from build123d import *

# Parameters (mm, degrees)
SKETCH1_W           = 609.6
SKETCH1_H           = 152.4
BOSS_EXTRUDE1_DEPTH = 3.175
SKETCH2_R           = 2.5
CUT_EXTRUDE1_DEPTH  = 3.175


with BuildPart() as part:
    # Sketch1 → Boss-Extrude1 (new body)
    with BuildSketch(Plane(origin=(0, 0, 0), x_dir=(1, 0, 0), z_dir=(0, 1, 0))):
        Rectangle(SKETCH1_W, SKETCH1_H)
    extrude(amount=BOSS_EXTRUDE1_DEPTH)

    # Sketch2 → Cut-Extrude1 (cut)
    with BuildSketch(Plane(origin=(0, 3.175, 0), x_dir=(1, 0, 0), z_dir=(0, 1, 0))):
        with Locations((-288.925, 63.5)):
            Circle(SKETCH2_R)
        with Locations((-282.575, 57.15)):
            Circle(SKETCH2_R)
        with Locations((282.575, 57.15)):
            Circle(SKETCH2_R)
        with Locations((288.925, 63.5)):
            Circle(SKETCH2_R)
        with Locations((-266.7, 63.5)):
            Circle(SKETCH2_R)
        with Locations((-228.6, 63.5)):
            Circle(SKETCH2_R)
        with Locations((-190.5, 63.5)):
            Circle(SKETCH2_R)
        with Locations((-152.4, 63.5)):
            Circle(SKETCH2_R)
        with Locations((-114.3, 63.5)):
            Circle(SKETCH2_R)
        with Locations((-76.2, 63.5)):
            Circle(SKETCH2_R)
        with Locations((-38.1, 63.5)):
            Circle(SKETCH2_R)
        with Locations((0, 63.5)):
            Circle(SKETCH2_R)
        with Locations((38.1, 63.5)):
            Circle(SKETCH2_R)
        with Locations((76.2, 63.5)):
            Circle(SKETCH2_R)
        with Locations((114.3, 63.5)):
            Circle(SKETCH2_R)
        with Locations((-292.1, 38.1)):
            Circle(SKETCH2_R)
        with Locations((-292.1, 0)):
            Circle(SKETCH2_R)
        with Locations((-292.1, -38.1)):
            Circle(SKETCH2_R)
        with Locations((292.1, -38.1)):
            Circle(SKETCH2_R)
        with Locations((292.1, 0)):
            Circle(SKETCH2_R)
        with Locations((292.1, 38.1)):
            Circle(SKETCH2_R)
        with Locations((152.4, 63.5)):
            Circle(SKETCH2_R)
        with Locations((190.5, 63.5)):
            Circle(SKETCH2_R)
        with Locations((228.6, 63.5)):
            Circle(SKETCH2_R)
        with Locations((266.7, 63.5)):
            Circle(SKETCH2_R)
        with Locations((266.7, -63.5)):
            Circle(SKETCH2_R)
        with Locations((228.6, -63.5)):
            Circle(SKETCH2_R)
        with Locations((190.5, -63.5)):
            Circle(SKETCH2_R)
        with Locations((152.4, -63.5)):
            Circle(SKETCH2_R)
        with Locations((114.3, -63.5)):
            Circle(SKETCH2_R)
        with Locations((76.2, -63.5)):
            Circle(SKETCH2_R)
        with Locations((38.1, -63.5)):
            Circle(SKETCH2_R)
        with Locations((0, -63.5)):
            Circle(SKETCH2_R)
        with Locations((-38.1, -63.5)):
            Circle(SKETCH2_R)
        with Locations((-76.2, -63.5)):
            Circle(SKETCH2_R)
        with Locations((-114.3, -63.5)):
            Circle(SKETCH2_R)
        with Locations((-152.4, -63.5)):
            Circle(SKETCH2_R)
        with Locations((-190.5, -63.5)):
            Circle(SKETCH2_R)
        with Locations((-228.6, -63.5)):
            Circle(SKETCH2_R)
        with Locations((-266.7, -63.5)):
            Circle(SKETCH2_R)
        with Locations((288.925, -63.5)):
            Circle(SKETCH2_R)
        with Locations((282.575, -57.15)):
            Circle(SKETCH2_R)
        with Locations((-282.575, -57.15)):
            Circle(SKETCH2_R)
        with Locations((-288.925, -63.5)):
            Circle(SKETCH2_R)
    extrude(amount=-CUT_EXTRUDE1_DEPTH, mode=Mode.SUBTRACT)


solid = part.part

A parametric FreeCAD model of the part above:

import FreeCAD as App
import Part
import Sketcher
Q = App.Units.Quantity


def add_polygon(sketch, points):
    """Adds a closed chain of lines whose ends are joined by coincident constraints."""
    first, n = sketch.GeometryCount, len(points)
    for a, b in zip(points, points[1:] + points[:1]):
        sketch.addGeometry(Part.LineSegment(App.Vector(*a, 0), App.Vector(*b, 0)), False)
    for i in range(n):
        sketch.addConstraint(Sketcher.Constraint("Coincident", first + i, 2, first + (i + 1) % n, 1))

doc = App.newDocument("Part")
params = doc.addObject("Spreadsheet::Sheet", "Params")
for row, (alias, value) in enumerate([
    ("sketch1_width", "24 in"),
    ("sketch1_height", "6 in"),
    ("pad1_length", "0.125 in"),
    ("pocket1_length", "0.125 in"),
], start=1):
    params.set(f"A{row}", alias)
    params.set(f"B{row}", "=" + value)
    params.setAlias(f"B{row}", alias)

body = doc.addObject("PartDesign::Body", "Body")

# Sketch on XZ plane
sketch1 = body.newObject("Sketcher::SketchObject", "Sketch")
sketch1.AttachmentSupport = (doc.getObject("XZ_Plane"), [""])
sketch1.MapMode = "FlatFace"
add_polygon(sketch1, [(-305, -76), (-305, 76), (305, 76), (305, -76)])  # lines 0-3
sketch1.addConstraint([
    Sketcher.Constraint("Vertical", 0),
    Sketcher.Constraint("Horizontal", 1),
    Sketcher.Constraint("Vertical", 2),
    Sketcher.Constraint("Horizontal", 3),
    Sketcher.Constraint("Symmetric", 0, 2, 2, 2, -1, 1),
    Sketcher.Constraint("DistanceX", 1, 1, 1, 2, Q("24 in")),
    Sketcher.Constraint("DistanceY", 0, 1, 0, 2, Q("6 in")),
])
sketch1.setExpression("Constraints[9]", "Params.sketch1_width")
sketch1.setExpression("Constraints[10]", "Params.sketch1_height")
pad1 = body.newObject("PartDesign::Pad", "Pad")
pad1.Profile = sketch1
pad1.setExpression("Length", "Params.pad1_length")
pad1.Reversed = True

# Sketch on XZ plane
sketch2 = body.newObject("Sketcher::SketchObject", "Sketch001")
sketch2.AttachmentSupport = (doc.getObject("XZ_Plane"), [""])
sketch2.MapMode = "FlatFace"
sketch2.AttachmentOffset = App.Placement(App.Vector(0, 0, -0.125 * 25.4), App.Rotation())
sketch2.addGeometry([
    Part.Circle(App.Vector(-288.9, -63.5, 0), App.Vector(0, 0, 1), 2.5),  # 0
    Part.Circle(App.Vector(-282.6, -57.1, 0), App.Vector(0, 0, 1), 2.5),  # 1
    Part.Circle(App.Vector(282.6, -57.1, 0), App.Vector(0, 0, 1), 2.5),  # 2
    Part.Circle(App.Vector(288.9, -63.5, 0), App.Vector(0, 0, 1), 2.5),  # 3
    Part.Circle(App.Vector(-266.7, -63.5, 0), App.Vector(0, 0, 1), 2.5),  # 4
    Part.Circle(App.Vector(-228.6, -63.5, 0), App.Vector(0, 0, 1), 2.5),  # 5
    Part.Circle(App.Vector(-190.5, -63.5, 0), App.Vector(0, 0, 1), 2.5),  # 6
    Part.Circle(App.Vector(-152.4, -63.5, 0), App.Vector(0, 0, 1), 2.5),  # 7
    Part.Circle(App.Vector(-114.3, -63.5, 0), App.Vector(0, 0, 1), 2.5),  # 8
    Part.Circle(App.Vector(-76.2, -63.5, 0), App.Vector(0, 0, 1), 2.5),  # 9
    Part.Circle(App.Vector(-38.1, -63.5, 0), App.Vector(0, 0, 1), 2.5),  # 10
    Part.Circle(App.Vector(0, -63.5, 0), App.Vector(0, 0, 1), 2.5),  # 11
    Part.Circle(App.Vector(38.1, -63.5, 0), App.Vector(0, 0, 1), 2.5),  # 12
    Part.Circle(App.Vector(76.2, -63.5, 0), App.Vector(0, 0, 1), 2.5),  # 13
    Part.Circle(App.Vector(114.3, -63.5, 0), App.Vector(0, 0, 1), 2.5),  # 14
    Part.Circle(App.Vector(-292.1, -38.1, 0), App.Vector(0, 0, 1), 2.5),  # 15
    Part.Circle(App.Vector(-292.1, 0, 0), App.Vector(0, 0, 1), 2.5),  # 16
    Part.Circle(App.Vector(-292.1, 38.1, 0), App.Vector(0, 0, 1), 2.5),  # 17
    Part.Circle(App.Vector(292.1, 38.1, 0), App.Vector(0, 0, 1), 2.5),  # 18
    Part.Circle(App.Vector(292.1, 0, 0), App.Vector(0, 0, 1), 2.5),  # 19
    Part.Circle(App.Vector(292.1, -38.1, 0), App.Vector(0, 0, 1), 2.5),  # 20
    Part.Circle(App.Vector(152.4, -63.5, 0), App.Vector(0, 0, 1), 2.5),  # 21
    Part.Circle(App.Vector(190.5, -63.5, 0), App.Vector(0, 0, 1), 2.5),  # 22
    Part.Circle(App.Vector(228.6, -63.5, 0), App.Vector(0, 0, 1), 2.5),  # 23
    Part.Circle(App.Vector(266.7, -63.5, 0), App.Vector(0, 0, 1), 2.5),  # 24
    Part.Circle(App.Vector(266.7, 63.5, 0), App.Vector(0, 0, 1), 2.5),  # 25
    Part.Circle(App.Vector(228.6, 63.5, 0), App.Vector(0, 0, 1), 2.5),  # 26
    Part.Circle(App.Vector(190.5, 63.5, 0), App.Vector(0, 0, 1), 2.5),  # 27
    Part.Circle(App.Vector(152.4, 63.5, 0), App.Vector(0, 0, 1), 2.5),  # 28
    Part.Circle(App.Vector(114.3, 63.5, 0), App.Vector(0, 0, 1), 2.5),  # 29
    Part.Circle(App.Vector(76.2, 63.5, 0), App.Vector(0, 0, 1), 2.5),  # 30
    Part.Circle(App.Vector(38.1, 63.5, 0), App.Vector(0, 0, 1), 2.5),  # 31
    Part.Circle(App.Vector(0, 63.5, 0), App.Vector(0, 0, 1), 2.5),  # 32
    Part.Circle(App.Vector(-38.1, 63.5, 0), App.Vector(0, 0, 1), 2.5),  # 33
    Part.Circle(App.Vector(-76.2, 63.5, 0), App.Vector(0, 0, 1), 2.5),  # 34
    Part.Circle(App.Vector(-114.3, 63.5, 0), App.Vector(0, 0, 1), 2.5),  # 35
    Part.Circle(App.Vector(-152.4, 63.5, 0), App.Vector(0, 0, 1), 2.5),  # 36
    Part.Circle(App.Vector(-190.5, 63.5, 0), App.Vector(0, 0, 1), 2.5),  # 37
    Part.Circle(App.Vector(-228.6, 63.5, 0), App.Vector(0, 0, 1), 2.5),  # 38
    Part.Circle(App.Vector(-266.7, 63.5, 0), App.Vector(0, 0, 1), 2.5),  # 39
    Part.Circle(App.Vector(288.9, 63.5, 0), App.Vector(0, 0, 1), 2.5),  # 40
    Part.Circle(App.Vector(282.6, 57.1, 0), App.Vector(0, 0, 1), 2.5),  # 41
    Part.Circle(App.Vector(-282.6, 57.1, 0), App.Vector(0, 0, 1), 2.5),  # 42
    Part.Circle(App.Vector(-288.9, 63.5, 0), App.Vector(0, 0, 1), 2.5),  # 43
], False)
sketch2.addConstraint([
    Sketcher.Constraint("Equal", 0, 1),
    Sketcher.Constraint("Equal", 1, 2),
    Sketcher.Constraint("Equal", 2, 3),
    Sketcher.Constraint("Equal", 3, 4),
    Sketcher.Constraint("Equal", 4, 5),
    Sketcher.Constraint("Equal", 5, 6),
    Sketcher.Constraint("Equal", 6, 7),
    Sketcher.Constraint("Equal", 7, 8),
    Sketcher.Constraint("Equal", 8, 9),
    Sketcher.Constraint("Equal", 9, 10),
    Sketcher.Constraint("Equal", 10, 11),
    Sketcher.Constraint("Equal", 11, 12),
    Sketcher.Constraint("Equal", 12, 13),
    Sketcher.Constraint("Equal", 13, 14),
    Sketcher.Constraint("Equal", 14, 15),
    Sketcher.Constraint("Equal", 15, 16),
    Sketcher.Constraint("Equal", 16, 17),
    Sketcher.Constraint("Equal", 17, 18),
    Sketcher.Constraint("Equal", 18, 19),
    Sketcher.Constraint("Equal", 19, 20),
    Sketcher.Constraint("Equal", 20, 21),
    Sketcher.Constraint("Equal", 21, 22),
    Sketcher.Constraint("Equal", 22, 23),
    Sketcher.Constraint("Equal", 23, 24),
    Sketcher.Constraint("Equal", 24, 25),
    Sketcher.Constraint("Equal", 25, 26),
    Sketcher.Constraint("Equal", 26, 27),
    Sketcher.Constraint("Equal", 27, 28),
    Sketcher.Constraint("Equal", 28, 29),
    Sketcher.Constraint("Equal", 29, 30),
    Sketcher.Constraint("Equal", 30, 31),
    Sketcher.Constraint("Equal", 31, 32),
    Sketcher.Constraint("Equal", 32, 33),
    Sketcher.Constraint("Equal", 33, 34),
    Sketcher.Constraint("Equal", 34, 35),
    Sketcher.Constraint("Equal", 35, 36),
    Sketcher.Constraint("Equal", 36, 37),
    Sketcher.Constraint("Equal", 37, 38),
    Sketcher.Constraint("Equal", 38, 39),
    Sketcher.Constraint("Equal", 39, 40),
    Sketcher.Constraint("Equal", 40, 41),
    Sketcher.Constraint("Equal", 41, 42),
    Sketcher.Constraint("Equal", 42, 43),
    Sketcher.Constraint("Symmetric", 15, 3, 18, 3, -1, 1),
    Sketcher.Constraint("Symmetric", 16, 3, 19, 3, -1, 1),
    Sketcher.Constraint("Symmetric", 17, 3, 20, 3, -1, 1),
    Sketcher.Constraint("Symmetric", 4, 3, 25, 3, -1, 1),
    Sketcher.Constraint("Symmetric", 5, 3, 26, 3, -1, 1),
    Sketcher.Constraint("Symmetric", 6, 3, 27, 3, -1, 1),
    Sketcher.Constraint("Symmetric", 7, 3, 28, 3, -1, 1),
    Sketcher.Constraint("Symmetric", 8, 3, 29, 3, -1, 1),
    Sketcher.Constraint("Symmetric", 9, 3, 30, 3, -1, 1),
    Sketcher.Constraint("Symmetric", 10, 3, 31, 3, -1, 1),
    Sketcher.Constraint("Symmetric", 11, 3, 32, 3, -1, 1),
    Sketcher.Constraint("Symmetric", 12, 3, 33, 3, -1, 1),
    Sketcher.Constraint("Symmetric", 13, 3, 34, 3, -1, 1),
    Sketcher.Constraint("Symmetric", 14, 3, 35, 3, -1, 1),
    Sketcher.Constraint("Symmetric", 21, 3, 36, 3, -1, 1),
    Sketcher.Constraint("Symmetric", 22, 3, 37, 3, -1, 1),
    Sketcher.Constraint("Symmetric", 23, 3, 38, 3, -1, 1),
    Sketcher.Constraint("Symmetric", 24, 3, 39, 3, -1, 1),
    Sketcher.Constraint("Symmetric", 0, 3, 40, 3, -1, 1),
    Sketcher.Constraint("Symmetric", 1, 3, 41, 3, -1, 1),
    Sketcher.Constraint("Symmetric", 2, 3, 42, 3, -1, 1),
    Sketcher.Constraint("Symmetric", 3, 3, 43, 3, -1, 1),
    Sketcher.Constraint("Symmetric", 1, 3, 2, 3, -2),
    Sketcher.Constraint("Symmetric", 0, 3, 3, 3, -2),
    Sketcher.Constraint("Symmetric", 10, 3, 12, 3, -2),
    Sketcher.Constraint("Symmetric", 9, 3, 13, 3, -2),
    Sketcher.Constraint("Symmetric", 8, 3, 14, 3, -2),
    Sketcher.Constraint("Symmetric", 17, 3, 18, 3, -2),
    Sketcher.Constraint("Symmetric", 7, 3, 21, 3, -2),
    Sketcher.Constraint("Symmetric", 6, 3, 22, 3, -2),
    Sketcher.Constraint("Symmetric", 5, 3, 23, 3, -2),
    Sketcher.Constraint("Symmetric", 4, 3, 24, 3, -2),
    Sketcher.Constraint("PointOnObject", 11, 3, -2),
    Sketcher.Constraint("PointOnObject", 16, 3, -1),
    Sketcher.Constraint("Horizontal", 3, 3, 4, 3),
    Sketcher.Constraint("Horizontal", 4, 3, 5, 3),
    Sketcher.Constraint("Horizontal", 5, 3, 6, 3),
    Sketcher.Constraint("Horizontal", 6, 3, 7, 3),
    Sketcher.Constraint("Horizontal", 7, 3, 8, 3),
    Sketcher.Constraint("Horizontal", 8, 3, 9, 3),
    Sketcher.Constraint("Horizontal", 9, 3, 10, 3),
    Sketcher.Constraint("Horizontal", 10, 3, 11, 3),
    Sketcher.Constraint("Vertical", 15, 3, 16, 3),
    Sketcher.Constraint("DistanceX", 5, 3, -1, 1, Q("9 in")),
    Sketcher.Constraint("DistanceX", 7, 3, -1, 1, Q("6 in")),
    Sketcher.Constraint("DistanceX", 9, 3, -1, 1, Q("3 in")),
    Sketcher.Constraint("DistanceX", 4, 3, 6, 3, Q("3 in")),
    Sketcher.Constraint("DistanceX", 6, 3, 8, 3, Q("3 in")),
    Sketcher.Constraint("DistanceX", 8, 3, 10, 3, Q("3 in")),
    Sketcher.Constraint("DistanceX", 10, 3, 12, 3, Q("3 in")),
    Sketcher.Constraint("DistanceY", 0, 3, 15, 3, Q("1 in")),
    Sketcher.Constraint("DistanceX", 15, 3, 4, 3, Q("1 in")),
    Sketcher.Constraint("DistanceY", 15, 3, 17, 3, Q("3 in")),
    Sketcher.Constraint("DistanceX", 0, 3, 2, 3, Q("22.5 in")),
    Sketcher.Constraint("Diameter", 0, Q("5 mm")),
    Sketcher.Constraint("DistanceY", 1, 3, -1, 1, Q("2.25 in")),
    Sketcher.Constraint("DistanceX", 0, 3, 1, 3, Q("0.25 in")),
])
pocket1 = body.newObject("PartDesign::Pocket", "Pocket")
pocket1.Profile = sketch2
pocket1.setExpression("Length", "Params.pocket1_length")
pocket1.Reversed = True

doc.recompute()
